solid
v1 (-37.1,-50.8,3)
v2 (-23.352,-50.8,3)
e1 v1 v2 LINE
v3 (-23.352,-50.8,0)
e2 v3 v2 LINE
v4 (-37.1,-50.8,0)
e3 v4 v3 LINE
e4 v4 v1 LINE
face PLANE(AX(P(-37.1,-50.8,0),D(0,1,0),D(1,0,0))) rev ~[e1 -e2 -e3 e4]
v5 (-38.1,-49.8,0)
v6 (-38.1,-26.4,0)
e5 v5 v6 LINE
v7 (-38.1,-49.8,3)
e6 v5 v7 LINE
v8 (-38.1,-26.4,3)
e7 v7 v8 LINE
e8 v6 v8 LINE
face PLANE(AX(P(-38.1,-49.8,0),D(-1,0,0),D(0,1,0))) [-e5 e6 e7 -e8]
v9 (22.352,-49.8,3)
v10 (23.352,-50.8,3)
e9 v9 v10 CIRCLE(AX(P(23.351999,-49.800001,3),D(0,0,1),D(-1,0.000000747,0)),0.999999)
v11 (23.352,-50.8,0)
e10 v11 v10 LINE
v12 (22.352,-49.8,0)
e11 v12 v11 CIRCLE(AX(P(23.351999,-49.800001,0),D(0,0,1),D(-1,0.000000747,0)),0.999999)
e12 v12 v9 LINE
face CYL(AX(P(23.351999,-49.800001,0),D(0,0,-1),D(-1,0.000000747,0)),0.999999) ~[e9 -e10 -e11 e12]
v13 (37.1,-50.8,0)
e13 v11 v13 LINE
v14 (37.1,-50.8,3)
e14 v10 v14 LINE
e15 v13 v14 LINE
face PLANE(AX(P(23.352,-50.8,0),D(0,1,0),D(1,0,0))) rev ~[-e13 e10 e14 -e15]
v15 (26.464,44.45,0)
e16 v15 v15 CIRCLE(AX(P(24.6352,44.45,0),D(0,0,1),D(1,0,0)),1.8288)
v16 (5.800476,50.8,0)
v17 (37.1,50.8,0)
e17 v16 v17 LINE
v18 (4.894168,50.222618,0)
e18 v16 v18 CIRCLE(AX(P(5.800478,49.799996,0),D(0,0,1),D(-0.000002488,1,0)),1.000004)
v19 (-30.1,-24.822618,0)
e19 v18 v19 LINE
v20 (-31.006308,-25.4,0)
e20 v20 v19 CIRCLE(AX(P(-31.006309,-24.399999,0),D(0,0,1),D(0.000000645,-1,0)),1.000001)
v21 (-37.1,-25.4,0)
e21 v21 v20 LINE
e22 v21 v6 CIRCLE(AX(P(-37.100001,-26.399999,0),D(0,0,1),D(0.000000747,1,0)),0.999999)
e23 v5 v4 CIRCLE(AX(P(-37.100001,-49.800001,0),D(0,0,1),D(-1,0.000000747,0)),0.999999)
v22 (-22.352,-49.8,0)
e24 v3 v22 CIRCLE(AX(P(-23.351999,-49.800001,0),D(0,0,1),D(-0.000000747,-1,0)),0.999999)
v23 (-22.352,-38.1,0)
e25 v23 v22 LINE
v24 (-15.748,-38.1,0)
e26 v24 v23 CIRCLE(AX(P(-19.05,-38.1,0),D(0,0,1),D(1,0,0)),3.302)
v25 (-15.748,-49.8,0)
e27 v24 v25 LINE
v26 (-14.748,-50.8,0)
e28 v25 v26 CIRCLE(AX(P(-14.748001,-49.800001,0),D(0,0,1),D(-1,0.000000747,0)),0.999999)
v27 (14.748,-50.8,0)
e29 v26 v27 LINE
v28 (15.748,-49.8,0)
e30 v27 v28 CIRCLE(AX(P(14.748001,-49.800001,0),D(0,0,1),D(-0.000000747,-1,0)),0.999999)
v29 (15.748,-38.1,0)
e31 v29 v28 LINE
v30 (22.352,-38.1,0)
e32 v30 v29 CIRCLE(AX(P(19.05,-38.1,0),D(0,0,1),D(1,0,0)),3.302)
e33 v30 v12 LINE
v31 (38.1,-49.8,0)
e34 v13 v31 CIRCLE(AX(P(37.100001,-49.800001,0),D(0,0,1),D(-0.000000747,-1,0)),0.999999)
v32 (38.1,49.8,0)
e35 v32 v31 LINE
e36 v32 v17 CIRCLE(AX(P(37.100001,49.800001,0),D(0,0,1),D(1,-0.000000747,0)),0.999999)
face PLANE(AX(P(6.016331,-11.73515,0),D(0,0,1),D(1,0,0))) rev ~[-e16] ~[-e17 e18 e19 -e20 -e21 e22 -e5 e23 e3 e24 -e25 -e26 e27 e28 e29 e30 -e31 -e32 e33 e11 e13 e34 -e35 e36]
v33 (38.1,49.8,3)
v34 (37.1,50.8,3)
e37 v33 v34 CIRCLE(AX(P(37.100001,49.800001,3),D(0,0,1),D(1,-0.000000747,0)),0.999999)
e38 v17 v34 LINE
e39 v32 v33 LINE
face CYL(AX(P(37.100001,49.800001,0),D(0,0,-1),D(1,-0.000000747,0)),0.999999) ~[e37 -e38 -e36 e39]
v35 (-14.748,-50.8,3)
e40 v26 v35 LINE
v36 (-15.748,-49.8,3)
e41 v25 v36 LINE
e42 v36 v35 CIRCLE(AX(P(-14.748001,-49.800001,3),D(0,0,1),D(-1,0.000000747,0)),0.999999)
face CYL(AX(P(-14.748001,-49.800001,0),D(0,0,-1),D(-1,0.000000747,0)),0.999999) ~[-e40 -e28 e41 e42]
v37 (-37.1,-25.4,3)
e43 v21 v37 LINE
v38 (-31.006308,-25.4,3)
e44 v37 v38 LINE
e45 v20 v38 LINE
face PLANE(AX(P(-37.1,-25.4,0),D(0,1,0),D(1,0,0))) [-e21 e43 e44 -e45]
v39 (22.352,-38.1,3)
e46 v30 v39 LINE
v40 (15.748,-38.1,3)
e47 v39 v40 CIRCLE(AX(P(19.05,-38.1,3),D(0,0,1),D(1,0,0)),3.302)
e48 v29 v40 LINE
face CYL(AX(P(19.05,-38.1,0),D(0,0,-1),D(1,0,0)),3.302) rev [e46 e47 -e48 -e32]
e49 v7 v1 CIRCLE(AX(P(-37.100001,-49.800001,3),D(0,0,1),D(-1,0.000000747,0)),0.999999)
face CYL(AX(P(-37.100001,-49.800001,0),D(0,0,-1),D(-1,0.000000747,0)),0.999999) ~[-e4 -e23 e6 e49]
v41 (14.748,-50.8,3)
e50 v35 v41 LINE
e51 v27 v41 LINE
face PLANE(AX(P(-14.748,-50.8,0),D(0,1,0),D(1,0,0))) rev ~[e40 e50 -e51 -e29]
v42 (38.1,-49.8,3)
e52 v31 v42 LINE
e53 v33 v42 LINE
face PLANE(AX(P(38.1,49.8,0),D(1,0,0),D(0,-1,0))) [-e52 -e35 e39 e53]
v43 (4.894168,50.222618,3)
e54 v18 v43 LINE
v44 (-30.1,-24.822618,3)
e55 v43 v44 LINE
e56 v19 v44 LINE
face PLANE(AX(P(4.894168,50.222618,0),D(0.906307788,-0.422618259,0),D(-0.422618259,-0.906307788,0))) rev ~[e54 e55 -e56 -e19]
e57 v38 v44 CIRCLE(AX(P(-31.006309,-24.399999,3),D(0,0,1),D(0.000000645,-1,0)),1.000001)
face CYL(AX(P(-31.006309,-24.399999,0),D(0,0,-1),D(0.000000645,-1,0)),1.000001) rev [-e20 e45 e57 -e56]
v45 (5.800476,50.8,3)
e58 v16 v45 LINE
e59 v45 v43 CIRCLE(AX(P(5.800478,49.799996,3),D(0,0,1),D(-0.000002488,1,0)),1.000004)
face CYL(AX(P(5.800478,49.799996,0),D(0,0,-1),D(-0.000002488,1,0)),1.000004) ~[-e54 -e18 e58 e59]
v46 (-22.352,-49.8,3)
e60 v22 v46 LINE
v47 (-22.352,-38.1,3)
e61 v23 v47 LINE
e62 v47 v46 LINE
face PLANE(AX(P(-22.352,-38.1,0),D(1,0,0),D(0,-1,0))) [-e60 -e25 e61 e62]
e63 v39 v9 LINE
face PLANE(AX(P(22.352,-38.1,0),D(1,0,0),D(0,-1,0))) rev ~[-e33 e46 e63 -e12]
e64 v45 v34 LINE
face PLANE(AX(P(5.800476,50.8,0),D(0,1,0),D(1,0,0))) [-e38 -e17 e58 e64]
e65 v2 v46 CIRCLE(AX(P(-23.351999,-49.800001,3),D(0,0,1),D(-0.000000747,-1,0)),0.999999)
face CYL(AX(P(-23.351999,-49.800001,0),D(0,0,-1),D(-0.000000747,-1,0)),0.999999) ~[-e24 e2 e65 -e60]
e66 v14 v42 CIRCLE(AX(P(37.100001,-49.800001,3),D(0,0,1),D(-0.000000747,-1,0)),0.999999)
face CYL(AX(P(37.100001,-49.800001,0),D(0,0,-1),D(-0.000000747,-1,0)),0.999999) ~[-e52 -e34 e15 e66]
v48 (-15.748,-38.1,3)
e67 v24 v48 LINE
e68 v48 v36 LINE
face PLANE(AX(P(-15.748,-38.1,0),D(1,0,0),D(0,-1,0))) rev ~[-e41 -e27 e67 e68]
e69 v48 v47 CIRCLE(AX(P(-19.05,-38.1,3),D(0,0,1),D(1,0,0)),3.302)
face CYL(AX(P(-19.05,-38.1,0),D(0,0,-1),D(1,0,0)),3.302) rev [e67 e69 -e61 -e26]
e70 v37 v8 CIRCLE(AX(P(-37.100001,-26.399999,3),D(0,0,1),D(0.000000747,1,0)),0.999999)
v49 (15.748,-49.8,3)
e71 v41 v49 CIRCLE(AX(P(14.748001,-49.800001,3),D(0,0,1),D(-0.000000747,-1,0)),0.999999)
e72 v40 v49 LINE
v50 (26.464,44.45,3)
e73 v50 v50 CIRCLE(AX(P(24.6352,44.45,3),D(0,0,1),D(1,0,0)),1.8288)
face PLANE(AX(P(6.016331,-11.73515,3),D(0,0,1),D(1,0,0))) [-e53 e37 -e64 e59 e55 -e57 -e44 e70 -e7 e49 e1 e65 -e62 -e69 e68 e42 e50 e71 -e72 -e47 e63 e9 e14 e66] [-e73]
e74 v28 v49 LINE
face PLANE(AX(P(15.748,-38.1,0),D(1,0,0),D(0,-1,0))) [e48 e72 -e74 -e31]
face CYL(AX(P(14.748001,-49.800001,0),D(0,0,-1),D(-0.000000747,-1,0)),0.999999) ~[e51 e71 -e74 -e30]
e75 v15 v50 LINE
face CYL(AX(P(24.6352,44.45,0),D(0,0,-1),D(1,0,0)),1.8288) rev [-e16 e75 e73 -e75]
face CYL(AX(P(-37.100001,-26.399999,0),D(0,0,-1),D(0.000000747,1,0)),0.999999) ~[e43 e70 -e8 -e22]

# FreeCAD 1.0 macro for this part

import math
import FreeCAD as App
import Part
import Sketcher
from FreeCAD import Vector
Q = App.Units.Quantity

doc = App.newDocument("Part")
body = doc.addObject("PartDesign::Body", "Body")

# Sketch on XY plane
sketch1 = doc.addObject("Sketcher::SketchObject", "Sketch")
body.addObject(sketch1)
sketch1.AttachmentSupport = (doc.XY_Plane, [""])
sketch1.MapMode = "FlatFace"
sketch1.addGeometry(Part.ArcOfCircle(Part.Circle(Vector(5.8, 49.8, 0), Vector(0, 0, 1), 1), math.radians(90), math.radians(155)), False)
sketch1.addGeometry(Part.LineSegment(Vector(4.9, 50.2, 0), Vector(-30.1, -24.8, 0)), False)
sketch1.addGeometry(Part.ArcOfCircle(Part.Circle(Vector(-31, -24.4, 0), Vector(0, 0, 1), 1), math.radians(-90), math.radians(-25)), False)
sketch1.addGeometry(Part.LineSegment(Vector(-31, -25.4, 0), Vector(-37.1, -25.4, 0)), False)
sketch1.addGeometry(Part.ArcOfCircle(Part.Circle(Vector(-37.1, -26.4, 0), Vector(0, 0, 1), 1), math.radians(90), math.radians(180)), False)
sketch1.addGeometry(Part.LineSegment(Vector(-38.1, -26.4, 0), Vector(-38.1, -49.8, 0)), False)
sketch1.addGeometry(Part.ArcOfCircle(Part.Circle(Vector(-37.1, -49.8, 0), Vector(0, 0, 1), 1), math.radians(180), math.radians(270)), False)
sketch1.addGeometry(Part.LineSegment(Vector(-37.1, -50.8, 0), Vector(-23.4, -50.8, 0)), False)
sketch1.addGeometry(Part.ArcOfCircle(Part.Circle(Vector(-23.4, -49.8, 0), Vector(0, 0, 1), 1), math.radians(-90), math.radians(0)), False)
sketch1.addGeometry(Part.LineSegment(Vector(-22.4, -49.8, 0), Vector(-22.4, -38.1, 0)), False)
sketch1.addGeometry(Part.ArcOfCircle(Part.Circle(Vector(-19.1, -38.1, 0), Vector(0, 0, 1), 3.3), math.radians(0), math.radians(180)), False)
sketch1.addGeometry(Part.LineSegment(Vector(-15.7, -38.1, 0), Vector(-15.7, -49.8, 0)), False)
sketch1.addGeometry(Part.ArcOfCircle(Part.Circle(Vector(-14.7, -49.8, 0), Vector(0, 0, 1), 1), math.radians(180), math.radians(270)), False)
sketch1.addGeometry(Part.LineSegment(Vector(-14.7, -50.8, 0), Vector(14.7, -50.8, 0)), False)
sketch1.addGeometry(Part.ArcOfCircle(Part.Circle(Vector(14.7, -49.8, 0), Vector(0, 0, 1), 1), math.radians(-90), math.radians(0)), False)
sketch1.addGeometry(Part.LineSegment(Vector(15.7, -49.8, 0), Vector(15.7, -38.1, 0)), False)
sketch1.addGeometry(Part.ArcOfCircle(Part.Circle(Vector(19.1, -38.1, 0), Vector(0, 0, 1), 3.3), math.radians(0), math.radians(180)), False)
sketch1.addGeometry(Part.LineSegment(Vector(22.4, -38.1, 0), Vector(22.4, -49.8, 0)), False)
sketch1.addGeometry(Part.ArcOfCircle(Part.Circle(Vector(23.4, -49.8, 0), Vector(0, 0, 1), 1), math.radians(180), math.radians(270)), False)
sketch1.addGeometry(Part.LineSegment(Vector(23.4, -50.8, 0), Vector(37.1, -50.8, 0)), False)
sketch1.addGeometry(Part.ArcOfCircle(Part.Circle(Vector(37.1, -49.8, 0), Vector(0, 0, 1), 1), math.radians(-90), math.radians(0)), False)
sketch1.addGeometry(Part.LineSegment(Vector(38.1, -49.8, 0), Vector(38.1, 49.8, 0)), False)
sketch1.addGeometry(Part.ArcOfCircle(Part.Circle(Vector(37.1, 49.8, 0), Vector(0, 0, 1), 1), math.radians(0), math.radians(90)), False)
sketch1.addGeometry(Part.LineSegment(Vector(37.1, 50.8, 0), Vector(5.8, 50.8, 0)), False)
sketch1.addGeometry(Part.Circle(Vector(24.6, 44.5, 0), Vector(0, 0, 1), 1.8), False)
sketch1.addConstraint(Sketcher.Constraint("Coincident", 0, 2, 1, 1))
sketch1.addConstraint(Sketcher.Constraint("Tangent", 1, 2, 2, 2))
sketch1.addConstraint(Sketcher.Constraint("Tangent", 2, 1, 3, 1))
sketch1.addConstraint(Sketcher.Constraint("Tangent", 3, 2, 4, 1))
sketch1.addConstraint(Sketcher.Constraint("Tangent", 4, 2, 5, 1))
sketch1.addConstraint(Sketcher.Constraint("Tangent", 5, 2, 6, 1))
sketch1.addConstraint(Sketcher.Constraint("Tangent", 6, 2, 7, 1))
sketch1.addConstraint(Sketcher.Constraint("Tangent", 7, 2, 8, 1))
sketch1.addConstraint(Sketcher.Constraint("Tangent", 8, 2, 9, 1))
sketch1.addConstraint(Sketcher.Constraint("Tangent", 9, 2, 10, 2))
sketch1.addConstraint(Sketcher.Constraint("Tangent", 10, 1, 11, 1))
sketch1.addConstraint(Sketcher.Constraint("Tangent", 11, 2, 12, 1))
sketch1.addConstraint(Sketcher.Constraint("Tangent", 12, 2, 13, 1))
sketch1.addConstraint(Sketcher.Constraint("Tangent", 13, 2, 14, 1))
sketch1.addConstraint(Sketcher.Constraint("Tangent", 14, 2, 15, 1))
sketch1.addConstraint(Sketcher.Constraint("Tangent", 15, 2, 16, 2))
sketch1.addConstraint(Sketcher.Constraint("Tangent", 16, 1, 17, 1))
sketch1.addConstraint(Sketcher.Constraint("Tangent", 17, 2, 18, 1))
sketch1.addConstraint(Sketcher.Constraint("Tangent", 18, 2, 19, 1))
sketch1.addConstraint(Sketcher.Constraint("Tangent", 19, 2, 20, 1))
sketch1.addConstraint(Sketcher.Constraint("Tangent", 20, 2, 21, 1))
sketch1.addConstraint(Sketcher.Constraint("Tangent", 21, 2, 22, 1))
sketch1.addConstraint(Sketcher.Constraint("Tangent", 22, 2, 23, 1))
sketch1.addConstraint(Sketcher.Constraint("Coincident", 23, 2, 0, 1))
sketch1.addConstraint(Sketcher.Constraint("Horizontal", 3))
sketch1.addConstraint(Sketcher.Constraint("Vertical", 5))
sketch1.addConstraint(Sketcher.Constraint("Horizontal", 7))
sketch1.addConstraint(Sketcher.Constraint("Vertical", 9))
sketch1.addConstraint(Sketcher.Constraint("Vertical", 11))
sketch1.addConstraint(Sketcher.Constraint("Horizontal", 13))
sketch1.addConstraint(Sketcher.Constraint("Vertical", 15))
sketch1.addConstraint(Sketcher.Constraint("Vertical", 17))
sketch1.addConstraint(Sketcher.Constraint("Horizontal", 19))
sketch1.addConstraint(Sketcher.Constraint("Vertical", 21))
sketch1.addConstraint(Sketcher.Constraint("Horizontal", 23))
sketch1.addConstraint(Sketcher.Constraint("Equal", 2, 4))
sketch1.addConstraint(Sketcher.Constraint("Equal", 4, 6))
sketch1.addConstraint(Sketcher.Constraint("Equal", 6, 8))
sketch1.addConstraint(Sketcher.Constraint("Equal", 8, 12))
sketch1.addConstraint(Sketcher.Constraint("Equal", 12, 14))
sketch1.addConstraint(Sketcher.Constraint("Equal", 10, 16))
sketch1.addConstraint(Sketcher.Constraint("Equal", 14, 18))
sketch1.addConstraint(Sketcher.Constraint("Equal", 18, 20))
sketch1.addConstraint(Sketcher.Constraint("Equal", 20, 22))
sketch1.addConstraint(Sketcher.Constraint("Symmetric", 6, 3, 22, 3, -1, 1))
sketch1.addConstraint(Sketcher.Constraint("Symmetric", 10, 3, 16, 3, -2))
sketch1.addConstraint(Sketcher.Constraint("Horizontal", 8, 3, 12, 3))
sketch1.addConstraint(Sketcher.Constraint("Horizontal", 14, 3, 18, 3))
sketch1.addConstraint(Sketcher.Constraint("Radius", 2, 1.000001))
sketch1.addConstraint(Sketcher.Constraint("Angle", 1, Q("-115 deg")))
sketch1.addConstraint(Sketcher.Constraint("DistanceY", 5, 2, 5, 1, 23.4))
sketch1.addConstraint(Sketcher.Constraint("DistanceY", 9, 1, 9, 2, 11.7))
sketch1.addConstraint(Sketcher.Constraint("DistanceY", 21, 1, 21, 2, 99.6))
sketch1.addConstraint(Sketcher.Constraint("Radius", 10, 3.302))
sketch1.addConstraint(Sketcher.Constraint("DistanceX", 4, 3, 1, 2, 7.000001))
sketch1.addConstraint(Sketcher.Constraint("Diameter", 24, 3.6576))
sketch1.addConstraint(Sketcher.Constraint("DistanceX", 4, 3, -1, 1, 37.100001))
sketch1.addConstraint(Sketcher.Constraint("DistanceX", 8, 3, 14, 3, 38.1))
sketch1.addConstraint(Sketcher.Constraint("DistanceY", -1, 1, 24, 3, 44.45))
sketch1.addConstraint(Sketcher.Constraint("Radius", 0, 1.000004))
sketch1.addConstraint(Sketcher.Constraint("DistanceX", -1, 1, 24, 3, 24.6352))
sketch1.addConstraint(Sketcher.Constraint("DistanceX", 23, 2, 23, 1, 31.299524))
sketch1.addConstraint(Sketcher.Constraint("DistanceX", -1, 1, 0, 2, 4.894168))
pad1 = doc.addObject("PartDesign::Pad", "Pad")
body.addObject(pad1)
pad1.Profile = sketch1
pad1.Length = 3

doc.recompute()
